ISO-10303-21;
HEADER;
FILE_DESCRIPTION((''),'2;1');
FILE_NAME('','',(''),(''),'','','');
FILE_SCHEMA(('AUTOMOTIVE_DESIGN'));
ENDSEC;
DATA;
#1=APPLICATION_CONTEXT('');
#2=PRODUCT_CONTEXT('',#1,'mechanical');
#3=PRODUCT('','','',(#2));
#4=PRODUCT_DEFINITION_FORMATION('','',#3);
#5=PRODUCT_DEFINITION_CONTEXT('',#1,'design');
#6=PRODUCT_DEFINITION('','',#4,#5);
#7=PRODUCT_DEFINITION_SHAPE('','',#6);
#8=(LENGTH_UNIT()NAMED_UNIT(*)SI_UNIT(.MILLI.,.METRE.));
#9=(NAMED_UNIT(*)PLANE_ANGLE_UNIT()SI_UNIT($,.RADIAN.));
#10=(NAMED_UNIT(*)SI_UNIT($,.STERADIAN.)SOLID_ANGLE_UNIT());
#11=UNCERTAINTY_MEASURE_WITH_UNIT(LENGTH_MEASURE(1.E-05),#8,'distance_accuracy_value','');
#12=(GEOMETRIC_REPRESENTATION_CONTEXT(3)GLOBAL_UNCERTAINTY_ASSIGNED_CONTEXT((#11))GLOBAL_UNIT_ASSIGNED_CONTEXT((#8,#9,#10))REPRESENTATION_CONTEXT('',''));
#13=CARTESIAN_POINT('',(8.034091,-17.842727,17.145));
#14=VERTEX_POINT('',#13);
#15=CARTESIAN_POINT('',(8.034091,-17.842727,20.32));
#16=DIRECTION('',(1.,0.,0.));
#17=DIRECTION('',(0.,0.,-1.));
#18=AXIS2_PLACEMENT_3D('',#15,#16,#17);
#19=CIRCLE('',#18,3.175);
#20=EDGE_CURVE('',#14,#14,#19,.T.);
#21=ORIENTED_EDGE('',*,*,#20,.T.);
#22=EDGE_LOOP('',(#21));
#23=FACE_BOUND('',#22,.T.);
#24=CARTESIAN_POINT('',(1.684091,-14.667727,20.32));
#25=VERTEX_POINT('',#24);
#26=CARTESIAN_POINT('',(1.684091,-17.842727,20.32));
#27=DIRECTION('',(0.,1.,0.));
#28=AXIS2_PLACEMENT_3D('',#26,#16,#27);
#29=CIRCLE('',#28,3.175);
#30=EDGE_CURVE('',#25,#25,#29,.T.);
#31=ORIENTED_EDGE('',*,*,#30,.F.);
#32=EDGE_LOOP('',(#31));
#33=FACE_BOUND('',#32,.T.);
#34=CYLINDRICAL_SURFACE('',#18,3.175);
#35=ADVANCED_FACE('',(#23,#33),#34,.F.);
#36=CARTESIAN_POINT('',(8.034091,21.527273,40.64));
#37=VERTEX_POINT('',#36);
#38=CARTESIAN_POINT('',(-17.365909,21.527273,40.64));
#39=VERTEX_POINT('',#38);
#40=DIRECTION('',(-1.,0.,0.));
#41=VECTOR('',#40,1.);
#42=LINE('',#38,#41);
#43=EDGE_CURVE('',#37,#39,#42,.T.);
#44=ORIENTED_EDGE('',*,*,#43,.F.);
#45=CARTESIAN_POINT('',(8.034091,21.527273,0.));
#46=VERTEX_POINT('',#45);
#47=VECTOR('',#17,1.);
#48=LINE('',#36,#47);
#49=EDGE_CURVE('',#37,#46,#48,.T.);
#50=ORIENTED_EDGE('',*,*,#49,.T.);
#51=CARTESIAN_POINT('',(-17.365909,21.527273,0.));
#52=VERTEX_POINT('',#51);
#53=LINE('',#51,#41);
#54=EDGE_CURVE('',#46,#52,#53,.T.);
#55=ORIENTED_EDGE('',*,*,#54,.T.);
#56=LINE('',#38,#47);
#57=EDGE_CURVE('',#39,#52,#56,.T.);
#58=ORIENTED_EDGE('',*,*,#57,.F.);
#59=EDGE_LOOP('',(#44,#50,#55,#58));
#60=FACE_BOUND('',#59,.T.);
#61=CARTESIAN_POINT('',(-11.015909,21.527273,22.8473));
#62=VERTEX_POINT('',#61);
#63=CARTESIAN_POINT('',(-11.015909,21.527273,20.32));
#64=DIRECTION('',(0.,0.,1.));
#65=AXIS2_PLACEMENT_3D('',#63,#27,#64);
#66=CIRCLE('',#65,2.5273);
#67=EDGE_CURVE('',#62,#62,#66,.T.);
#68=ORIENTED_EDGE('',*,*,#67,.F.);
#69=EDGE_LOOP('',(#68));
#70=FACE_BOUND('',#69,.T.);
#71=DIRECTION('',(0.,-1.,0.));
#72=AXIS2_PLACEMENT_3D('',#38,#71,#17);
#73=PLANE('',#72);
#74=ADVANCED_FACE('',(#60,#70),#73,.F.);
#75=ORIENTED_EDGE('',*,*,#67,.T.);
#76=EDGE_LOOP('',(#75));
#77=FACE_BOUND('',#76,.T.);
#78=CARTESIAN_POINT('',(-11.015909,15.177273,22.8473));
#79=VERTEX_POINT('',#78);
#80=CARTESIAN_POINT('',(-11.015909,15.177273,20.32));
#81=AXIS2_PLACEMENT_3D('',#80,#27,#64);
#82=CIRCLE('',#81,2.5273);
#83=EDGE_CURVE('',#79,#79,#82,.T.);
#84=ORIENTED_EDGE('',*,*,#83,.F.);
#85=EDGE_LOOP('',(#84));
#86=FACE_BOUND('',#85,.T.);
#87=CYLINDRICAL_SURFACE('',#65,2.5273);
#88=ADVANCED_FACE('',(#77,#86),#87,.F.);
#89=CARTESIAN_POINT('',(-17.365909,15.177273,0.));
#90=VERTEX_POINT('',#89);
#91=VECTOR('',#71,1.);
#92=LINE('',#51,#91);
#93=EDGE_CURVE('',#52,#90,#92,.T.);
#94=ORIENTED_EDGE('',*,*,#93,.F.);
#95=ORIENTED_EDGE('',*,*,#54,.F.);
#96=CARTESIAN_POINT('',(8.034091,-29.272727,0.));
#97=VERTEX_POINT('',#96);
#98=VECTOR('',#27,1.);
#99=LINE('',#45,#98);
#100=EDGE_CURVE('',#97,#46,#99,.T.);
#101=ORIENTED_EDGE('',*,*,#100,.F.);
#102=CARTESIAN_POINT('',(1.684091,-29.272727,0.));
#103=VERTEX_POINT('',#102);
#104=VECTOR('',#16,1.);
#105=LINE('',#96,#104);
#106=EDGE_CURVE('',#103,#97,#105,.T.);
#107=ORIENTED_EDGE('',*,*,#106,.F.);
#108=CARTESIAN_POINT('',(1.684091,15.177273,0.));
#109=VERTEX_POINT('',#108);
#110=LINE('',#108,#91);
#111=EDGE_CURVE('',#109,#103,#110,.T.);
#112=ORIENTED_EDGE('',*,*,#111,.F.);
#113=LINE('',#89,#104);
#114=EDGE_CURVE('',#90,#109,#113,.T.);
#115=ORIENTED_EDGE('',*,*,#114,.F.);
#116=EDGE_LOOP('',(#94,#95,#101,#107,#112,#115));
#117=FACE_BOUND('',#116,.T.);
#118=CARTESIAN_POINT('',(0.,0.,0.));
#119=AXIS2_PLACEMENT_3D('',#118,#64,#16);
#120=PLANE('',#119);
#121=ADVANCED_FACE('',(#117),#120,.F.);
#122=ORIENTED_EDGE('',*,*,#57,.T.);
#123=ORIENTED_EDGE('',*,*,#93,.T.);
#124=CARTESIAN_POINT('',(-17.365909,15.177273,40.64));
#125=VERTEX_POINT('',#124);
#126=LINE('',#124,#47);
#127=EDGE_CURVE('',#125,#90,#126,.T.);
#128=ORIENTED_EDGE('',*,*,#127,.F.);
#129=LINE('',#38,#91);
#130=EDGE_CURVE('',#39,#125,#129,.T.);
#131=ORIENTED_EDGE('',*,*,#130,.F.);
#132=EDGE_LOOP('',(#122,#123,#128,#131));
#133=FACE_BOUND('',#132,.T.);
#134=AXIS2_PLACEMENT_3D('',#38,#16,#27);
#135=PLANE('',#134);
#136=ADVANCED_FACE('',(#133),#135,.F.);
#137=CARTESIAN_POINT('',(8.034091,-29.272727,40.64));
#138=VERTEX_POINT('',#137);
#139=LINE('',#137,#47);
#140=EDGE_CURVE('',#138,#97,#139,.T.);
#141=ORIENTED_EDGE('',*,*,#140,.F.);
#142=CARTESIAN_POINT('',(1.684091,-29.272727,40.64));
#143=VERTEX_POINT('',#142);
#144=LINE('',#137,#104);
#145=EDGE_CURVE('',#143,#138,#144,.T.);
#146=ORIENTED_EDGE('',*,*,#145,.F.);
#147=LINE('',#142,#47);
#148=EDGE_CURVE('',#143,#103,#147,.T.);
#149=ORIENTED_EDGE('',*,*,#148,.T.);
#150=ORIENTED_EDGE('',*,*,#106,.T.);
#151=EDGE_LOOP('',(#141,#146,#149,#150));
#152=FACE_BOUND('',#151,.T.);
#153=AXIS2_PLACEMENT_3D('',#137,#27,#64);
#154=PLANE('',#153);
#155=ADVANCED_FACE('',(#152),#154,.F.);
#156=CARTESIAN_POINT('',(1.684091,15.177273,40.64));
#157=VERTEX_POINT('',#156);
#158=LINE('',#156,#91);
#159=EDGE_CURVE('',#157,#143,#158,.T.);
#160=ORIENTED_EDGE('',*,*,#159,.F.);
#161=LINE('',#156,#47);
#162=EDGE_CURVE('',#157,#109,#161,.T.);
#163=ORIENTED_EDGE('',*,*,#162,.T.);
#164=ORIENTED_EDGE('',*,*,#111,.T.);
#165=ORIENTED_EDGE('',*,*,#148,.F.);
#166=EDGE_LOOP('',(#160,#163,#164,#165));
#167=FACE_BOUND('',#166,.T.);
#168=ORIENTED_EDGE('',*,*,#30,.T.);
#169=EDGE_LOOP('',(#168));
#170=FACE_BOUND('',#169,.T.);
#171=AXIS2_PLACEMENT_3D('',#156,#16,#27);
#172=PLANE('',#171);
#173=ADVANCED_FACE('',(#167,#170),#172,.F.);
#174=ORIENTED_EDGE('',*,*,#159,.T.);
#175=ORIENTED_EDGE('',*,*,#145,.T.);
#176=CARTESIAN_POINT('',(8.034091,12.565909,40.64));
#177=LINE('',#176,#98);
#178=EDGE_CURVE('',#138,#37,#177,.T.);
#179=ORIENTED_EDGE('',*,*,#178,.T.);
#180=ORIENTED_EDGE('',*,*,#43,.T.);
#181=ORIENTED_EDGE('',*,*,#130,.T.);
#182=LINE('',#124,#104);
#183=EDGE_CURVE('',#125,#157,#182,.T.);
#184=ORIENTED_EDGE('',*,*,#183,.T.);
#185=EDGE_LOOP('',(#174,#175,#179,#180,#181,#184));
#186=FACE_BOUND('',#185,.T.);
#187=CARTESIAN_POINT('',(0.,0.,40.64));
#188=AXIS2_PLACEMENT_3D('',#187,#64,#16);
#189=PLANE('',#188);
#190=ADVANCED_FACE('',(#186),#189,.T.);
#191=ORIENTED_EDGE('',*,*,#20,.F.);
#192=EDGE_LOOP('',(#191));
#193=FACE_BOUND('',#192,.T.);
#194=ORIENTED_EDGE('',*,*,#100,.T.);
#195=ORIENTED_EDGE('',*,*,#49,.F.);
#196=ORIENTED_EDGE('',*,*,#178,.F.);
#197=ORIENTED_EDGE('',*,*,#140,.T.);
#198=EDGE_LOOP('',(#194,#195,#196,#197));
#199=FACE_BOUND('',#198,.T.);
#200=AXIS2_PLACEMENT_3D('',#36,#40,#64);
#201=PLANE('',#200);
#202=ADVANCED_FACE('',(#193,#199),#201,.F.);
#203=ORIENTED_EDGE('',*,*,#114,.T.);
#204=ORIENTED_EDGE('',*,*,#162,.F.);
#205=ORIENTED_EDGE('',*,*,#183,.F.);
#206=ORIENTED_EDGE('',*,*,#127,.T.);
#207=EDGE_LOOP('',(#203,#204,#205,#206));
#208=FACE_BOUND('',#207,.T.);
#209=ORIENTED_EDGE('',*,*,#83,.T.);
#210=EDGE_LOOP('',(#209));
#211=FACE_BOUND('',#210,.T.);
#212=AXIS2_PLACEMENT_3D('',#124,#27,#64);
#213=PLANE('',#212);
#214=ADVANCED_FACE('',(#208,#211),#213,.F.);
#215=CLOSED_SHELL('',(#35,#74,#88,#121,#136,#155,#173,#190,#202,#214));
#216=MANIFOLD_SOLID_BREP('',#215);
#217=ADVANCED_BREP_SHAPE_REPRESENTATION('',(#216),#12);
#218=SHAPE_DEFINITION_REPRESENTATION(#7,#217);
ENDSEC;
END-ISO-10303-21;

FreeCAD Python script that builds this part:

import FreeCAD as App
import Part
import Sketcher
Q = App.Units.Quantity


def add_polygon(sketch, points):
    """Adds a closed chain of lines whose ends are joined by coincident constraints."""
    first, n = sketch.GeometryCount, len(points)
    for a, b in zip(points, points[1:] + points[:1]):
        sketch.addGeometry(Part.LineSegment(App.Vector(*a, 0), App.Vector(*b, 0)), False)
    for i in range(n):
        sketch.addConstraint(Sketcher.Constraint("Coincident", first + i, 2, first + (i + 1) % n, 1))

doc = App.newDocument("Part")
params = doc.addObject("Spreadsheet::Sheet", "Params")
for row, (alias, value) in enumerate([
    ("sketch1_width", "1 in"),
    ("sketch1_height", "2 in"),
    ("sketch1_width2", "0.75 in"),
    ("pad1_length", "1.6 in"),
    ("sketch2_diameter", "0.25 in"),
    ("hole_diameter", "0.25 in"),
    ("sketch3_diameter", "0.199 in"),
    ("hole2_diameter", "0.199 in"),
], start=1):
    params.set(f"A{row}", alias)
    params.set(f"B{row}", "=" + value)
    params.setAlias(f"B{row}", alias)

body = doc.addObject("PartDesign::Body", "Body")

sketch1 = body.newObject("Sketcher::SketchObject", "Sketch")
sketch1.AttachmentSupport = (doc.getObject("XY_Plane"), [""])
sketch1.MapMode = "FlatFace"
add_polygon(sketch1, [(8.034091, 21.527273), (-17.365909, 21.527273), (-17.365909, 15.177273), (1.684091, 15.177273), (1.684091, -29.272727), (8.034091, -29.272727)])
sketch1.addConstraint(Sketcher.Constraint("Horizontal", 0))
sketch1.addConstraint(Sketcher.Constraint("Vertical", 1))
sketch1.addConstraint(Sketcher.Constraint("Horizontal", 2))
sketch1.addConstraint(Sketcher.Constraint("Vertical", 3))
sketch1.addConstraint(Sketcher.Constraint("Horizontal", 4))
sketch1.addConstraint(Sketcher.Constraint("Vertical", 5))
sketch1.addConstraint(Sketcher.Constraint("Equal", 4, 1))
sketch1.addConstraint(Sketcher.Constraint("DistanceX", 0, 2, 0, 1, Q("1 in")))
sketch1.addConstraint(Sketcher.Constraint("DistanceY", 5, 1, 5, 2, Q("2 in")))
sketch1.addConstraint(Sketcher.Constraint("DistanceX", 2, 1, 2, 2, Q("0.75 in")))
sketch1.addConstraint(Sketcher.Constraint("DistanceX", 0, 2, -1, 1, Q("17.365909 mm")))
sketch1.addConstraint(Sketcher.Constraint("DistanceY", -1, 1, 0, 2, Q("21.527273 mm")))
sketch1.setExpression("Constraints[13]", "Params.sketch1_width")
sketch1.setExpression("Constraints[14]", "Params.sketch1_height")
sketch1.setExpression("Constraints[15]", "Params.sketch1_width2")
pad1 = body.newObject("PartDesign::Pad", "Pad")
pad1.Profile = sketch1
pad1.setExpression("Length", "Params.pad1_length")

sketch2 = body.newObject("Sketcher::SketchObject", "Sketch001")
sketch2.AttachmentSupport = (doc.getObject("YZ_Plane"), [""])
sketch2.MapMode = "FlatFace"
sketch2.AttachmentOffset = App.Placement(App.Vector(0, 0, 8.034091), App.Rotation())
sketch2.addGeometry(Part.Circle(App.Vector(-17.842727, 20.32, 0), App.Vector(0, 0, 1), 3.175), False)
sketch2.addConstraint(Sketcher.Constraint("Diameter", 0, Q("0.25 in")))
sketch2.addConstraint(Sketcher.Constraint("DistanceY", -1, 1, 0, 3, Q("0.8 in")))
sketch2.addConstraint(Sketcher.Constraint("DistanceX", 0, 3, -1, 1, Q("17.842727 mm")))
sketch2.setExpression("Constraints[0]", "Params.sketch2_diameter")
doc.recompute()
hole = body.newObject("PartDesign::Hole", "Hole")
hole.Profile = sketch2
hole.ThreadType = "None"
hole.setExpression("Diameter", "Params.hole_diameter")
hole.DepthType = "ThroughAll"

sketch3 = body.newObject("Sketcher::SketchObject", "Sketch002")
sketch3.AttachmentSupport = (doc.getObject("XZ_Plane"), [""])
sketch3.MapMode = "FlatFace"
sketch3.AttachmentOffset = App.Placement(App.Vector(0, 0, -21.527273), App.Rotation())
sketch3.addGeometry(Part.Circle(App.Vector(-11.015909, 20.32, 0), App.Vector(0, 0, 1), 2.5273), False)
sketch3.addConstraint(Sketcher.Constraint("Diameter", 0, Q("0.199 in")))
sketch3.addConstraint(Sketcher.Constraint("DistanceY", -1, 1, 0, 3, Q("0.8 in")))
sketch3.addConstraint(Sketcher.Constraint("DistanceX", 0, 3, -1, 1, Q("11.015909 mm")))
sketch3.setExpression("Constraints[0]", "Params.sketch3_diameter")
doc.recompute()
hole2 = body.newObject("PartDesign::Hole", "Hole001")
hole2.Profile = sketch3
hole2.ThreadType = "None"
hole2.setExpression("Diameter", "Params.hole2_diameter")
hole2.DepthType = "ThroughAll"
hole2.Reversed = True

doc.recompute()
